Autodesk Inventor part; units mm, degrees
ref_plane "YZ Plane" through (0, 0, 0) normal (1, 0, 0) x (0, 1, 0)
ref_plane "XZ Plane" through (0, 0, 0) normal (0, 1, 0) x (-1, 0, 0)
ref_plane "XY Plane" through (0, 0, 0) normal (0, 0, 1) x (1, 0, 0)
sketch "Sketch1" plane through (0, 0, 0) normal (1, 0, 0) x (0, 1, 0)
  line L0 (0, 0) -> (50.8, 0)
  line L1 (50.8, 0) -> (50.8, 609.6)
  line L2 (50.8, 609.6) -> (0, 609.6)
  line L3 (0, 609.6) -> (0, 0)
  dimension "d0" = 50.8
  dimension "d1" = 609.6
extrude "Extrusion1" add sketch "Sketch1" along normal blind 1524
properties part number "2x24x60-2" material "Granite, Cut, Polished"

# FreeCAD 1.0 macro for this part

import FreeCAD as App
import Part
import Sketcher
Q = App.Units.Quantity


def add_polygon(sketch, points):
    """Adds a closed chain of lines whose ends are joined by coincident constraints."""
    first, n = sketch.GeometryCount, len(points)
    for a, b in zip(points, points[1:] + points[:1]):
        sketch.addGeometry(Part.LineSegment(App.Vector(*a, 0), App.Vector(*b, 0)), False)
    for i in range(n):
        sketch.addConstraint(Sketcher.Constraint("Coincident", first + i, 2, first + (i + 1) % n, 1))

doc = App.newDocument("Part")
body = doc.addObject("PartDesign::Body", "Body")

sketch1 = body.newObject("Sketcher::SketchObject", "Sketch")
sketch1.AttachmentSupport = (doc.getObject("YZ_Plane"), [""])
sketch1.MapMode = "FlatFace"
add_polygon(sketch1, [(0, 610), (0, 0), (51, 0), (51, 610)])
sketch1.addConstraint([
    Sketcher.Constraint("Vertical", 0),
    Sketcher.Constraint("Horizontal", 1),
    Sketcher.Constraint("Vertical", 2),
    Sketcher.Constraint("Horizontal", 3),
    Sketcher.Constraint("Coincident", 0, 2, -1, 1),
    Sketcher.Constraint("DistanceX", 1, 1, 1, 2, Q("2 in")),
    Sketcher.Constraint("DistanceY", 0, 2, 0, 1, Q("24 in")),
])
pad1 = body.newObject("PartDesign::Pad", "Pad")
pad1.Profile = sketch1
pad1.Length = Q("60 in")

doc.recompute()
